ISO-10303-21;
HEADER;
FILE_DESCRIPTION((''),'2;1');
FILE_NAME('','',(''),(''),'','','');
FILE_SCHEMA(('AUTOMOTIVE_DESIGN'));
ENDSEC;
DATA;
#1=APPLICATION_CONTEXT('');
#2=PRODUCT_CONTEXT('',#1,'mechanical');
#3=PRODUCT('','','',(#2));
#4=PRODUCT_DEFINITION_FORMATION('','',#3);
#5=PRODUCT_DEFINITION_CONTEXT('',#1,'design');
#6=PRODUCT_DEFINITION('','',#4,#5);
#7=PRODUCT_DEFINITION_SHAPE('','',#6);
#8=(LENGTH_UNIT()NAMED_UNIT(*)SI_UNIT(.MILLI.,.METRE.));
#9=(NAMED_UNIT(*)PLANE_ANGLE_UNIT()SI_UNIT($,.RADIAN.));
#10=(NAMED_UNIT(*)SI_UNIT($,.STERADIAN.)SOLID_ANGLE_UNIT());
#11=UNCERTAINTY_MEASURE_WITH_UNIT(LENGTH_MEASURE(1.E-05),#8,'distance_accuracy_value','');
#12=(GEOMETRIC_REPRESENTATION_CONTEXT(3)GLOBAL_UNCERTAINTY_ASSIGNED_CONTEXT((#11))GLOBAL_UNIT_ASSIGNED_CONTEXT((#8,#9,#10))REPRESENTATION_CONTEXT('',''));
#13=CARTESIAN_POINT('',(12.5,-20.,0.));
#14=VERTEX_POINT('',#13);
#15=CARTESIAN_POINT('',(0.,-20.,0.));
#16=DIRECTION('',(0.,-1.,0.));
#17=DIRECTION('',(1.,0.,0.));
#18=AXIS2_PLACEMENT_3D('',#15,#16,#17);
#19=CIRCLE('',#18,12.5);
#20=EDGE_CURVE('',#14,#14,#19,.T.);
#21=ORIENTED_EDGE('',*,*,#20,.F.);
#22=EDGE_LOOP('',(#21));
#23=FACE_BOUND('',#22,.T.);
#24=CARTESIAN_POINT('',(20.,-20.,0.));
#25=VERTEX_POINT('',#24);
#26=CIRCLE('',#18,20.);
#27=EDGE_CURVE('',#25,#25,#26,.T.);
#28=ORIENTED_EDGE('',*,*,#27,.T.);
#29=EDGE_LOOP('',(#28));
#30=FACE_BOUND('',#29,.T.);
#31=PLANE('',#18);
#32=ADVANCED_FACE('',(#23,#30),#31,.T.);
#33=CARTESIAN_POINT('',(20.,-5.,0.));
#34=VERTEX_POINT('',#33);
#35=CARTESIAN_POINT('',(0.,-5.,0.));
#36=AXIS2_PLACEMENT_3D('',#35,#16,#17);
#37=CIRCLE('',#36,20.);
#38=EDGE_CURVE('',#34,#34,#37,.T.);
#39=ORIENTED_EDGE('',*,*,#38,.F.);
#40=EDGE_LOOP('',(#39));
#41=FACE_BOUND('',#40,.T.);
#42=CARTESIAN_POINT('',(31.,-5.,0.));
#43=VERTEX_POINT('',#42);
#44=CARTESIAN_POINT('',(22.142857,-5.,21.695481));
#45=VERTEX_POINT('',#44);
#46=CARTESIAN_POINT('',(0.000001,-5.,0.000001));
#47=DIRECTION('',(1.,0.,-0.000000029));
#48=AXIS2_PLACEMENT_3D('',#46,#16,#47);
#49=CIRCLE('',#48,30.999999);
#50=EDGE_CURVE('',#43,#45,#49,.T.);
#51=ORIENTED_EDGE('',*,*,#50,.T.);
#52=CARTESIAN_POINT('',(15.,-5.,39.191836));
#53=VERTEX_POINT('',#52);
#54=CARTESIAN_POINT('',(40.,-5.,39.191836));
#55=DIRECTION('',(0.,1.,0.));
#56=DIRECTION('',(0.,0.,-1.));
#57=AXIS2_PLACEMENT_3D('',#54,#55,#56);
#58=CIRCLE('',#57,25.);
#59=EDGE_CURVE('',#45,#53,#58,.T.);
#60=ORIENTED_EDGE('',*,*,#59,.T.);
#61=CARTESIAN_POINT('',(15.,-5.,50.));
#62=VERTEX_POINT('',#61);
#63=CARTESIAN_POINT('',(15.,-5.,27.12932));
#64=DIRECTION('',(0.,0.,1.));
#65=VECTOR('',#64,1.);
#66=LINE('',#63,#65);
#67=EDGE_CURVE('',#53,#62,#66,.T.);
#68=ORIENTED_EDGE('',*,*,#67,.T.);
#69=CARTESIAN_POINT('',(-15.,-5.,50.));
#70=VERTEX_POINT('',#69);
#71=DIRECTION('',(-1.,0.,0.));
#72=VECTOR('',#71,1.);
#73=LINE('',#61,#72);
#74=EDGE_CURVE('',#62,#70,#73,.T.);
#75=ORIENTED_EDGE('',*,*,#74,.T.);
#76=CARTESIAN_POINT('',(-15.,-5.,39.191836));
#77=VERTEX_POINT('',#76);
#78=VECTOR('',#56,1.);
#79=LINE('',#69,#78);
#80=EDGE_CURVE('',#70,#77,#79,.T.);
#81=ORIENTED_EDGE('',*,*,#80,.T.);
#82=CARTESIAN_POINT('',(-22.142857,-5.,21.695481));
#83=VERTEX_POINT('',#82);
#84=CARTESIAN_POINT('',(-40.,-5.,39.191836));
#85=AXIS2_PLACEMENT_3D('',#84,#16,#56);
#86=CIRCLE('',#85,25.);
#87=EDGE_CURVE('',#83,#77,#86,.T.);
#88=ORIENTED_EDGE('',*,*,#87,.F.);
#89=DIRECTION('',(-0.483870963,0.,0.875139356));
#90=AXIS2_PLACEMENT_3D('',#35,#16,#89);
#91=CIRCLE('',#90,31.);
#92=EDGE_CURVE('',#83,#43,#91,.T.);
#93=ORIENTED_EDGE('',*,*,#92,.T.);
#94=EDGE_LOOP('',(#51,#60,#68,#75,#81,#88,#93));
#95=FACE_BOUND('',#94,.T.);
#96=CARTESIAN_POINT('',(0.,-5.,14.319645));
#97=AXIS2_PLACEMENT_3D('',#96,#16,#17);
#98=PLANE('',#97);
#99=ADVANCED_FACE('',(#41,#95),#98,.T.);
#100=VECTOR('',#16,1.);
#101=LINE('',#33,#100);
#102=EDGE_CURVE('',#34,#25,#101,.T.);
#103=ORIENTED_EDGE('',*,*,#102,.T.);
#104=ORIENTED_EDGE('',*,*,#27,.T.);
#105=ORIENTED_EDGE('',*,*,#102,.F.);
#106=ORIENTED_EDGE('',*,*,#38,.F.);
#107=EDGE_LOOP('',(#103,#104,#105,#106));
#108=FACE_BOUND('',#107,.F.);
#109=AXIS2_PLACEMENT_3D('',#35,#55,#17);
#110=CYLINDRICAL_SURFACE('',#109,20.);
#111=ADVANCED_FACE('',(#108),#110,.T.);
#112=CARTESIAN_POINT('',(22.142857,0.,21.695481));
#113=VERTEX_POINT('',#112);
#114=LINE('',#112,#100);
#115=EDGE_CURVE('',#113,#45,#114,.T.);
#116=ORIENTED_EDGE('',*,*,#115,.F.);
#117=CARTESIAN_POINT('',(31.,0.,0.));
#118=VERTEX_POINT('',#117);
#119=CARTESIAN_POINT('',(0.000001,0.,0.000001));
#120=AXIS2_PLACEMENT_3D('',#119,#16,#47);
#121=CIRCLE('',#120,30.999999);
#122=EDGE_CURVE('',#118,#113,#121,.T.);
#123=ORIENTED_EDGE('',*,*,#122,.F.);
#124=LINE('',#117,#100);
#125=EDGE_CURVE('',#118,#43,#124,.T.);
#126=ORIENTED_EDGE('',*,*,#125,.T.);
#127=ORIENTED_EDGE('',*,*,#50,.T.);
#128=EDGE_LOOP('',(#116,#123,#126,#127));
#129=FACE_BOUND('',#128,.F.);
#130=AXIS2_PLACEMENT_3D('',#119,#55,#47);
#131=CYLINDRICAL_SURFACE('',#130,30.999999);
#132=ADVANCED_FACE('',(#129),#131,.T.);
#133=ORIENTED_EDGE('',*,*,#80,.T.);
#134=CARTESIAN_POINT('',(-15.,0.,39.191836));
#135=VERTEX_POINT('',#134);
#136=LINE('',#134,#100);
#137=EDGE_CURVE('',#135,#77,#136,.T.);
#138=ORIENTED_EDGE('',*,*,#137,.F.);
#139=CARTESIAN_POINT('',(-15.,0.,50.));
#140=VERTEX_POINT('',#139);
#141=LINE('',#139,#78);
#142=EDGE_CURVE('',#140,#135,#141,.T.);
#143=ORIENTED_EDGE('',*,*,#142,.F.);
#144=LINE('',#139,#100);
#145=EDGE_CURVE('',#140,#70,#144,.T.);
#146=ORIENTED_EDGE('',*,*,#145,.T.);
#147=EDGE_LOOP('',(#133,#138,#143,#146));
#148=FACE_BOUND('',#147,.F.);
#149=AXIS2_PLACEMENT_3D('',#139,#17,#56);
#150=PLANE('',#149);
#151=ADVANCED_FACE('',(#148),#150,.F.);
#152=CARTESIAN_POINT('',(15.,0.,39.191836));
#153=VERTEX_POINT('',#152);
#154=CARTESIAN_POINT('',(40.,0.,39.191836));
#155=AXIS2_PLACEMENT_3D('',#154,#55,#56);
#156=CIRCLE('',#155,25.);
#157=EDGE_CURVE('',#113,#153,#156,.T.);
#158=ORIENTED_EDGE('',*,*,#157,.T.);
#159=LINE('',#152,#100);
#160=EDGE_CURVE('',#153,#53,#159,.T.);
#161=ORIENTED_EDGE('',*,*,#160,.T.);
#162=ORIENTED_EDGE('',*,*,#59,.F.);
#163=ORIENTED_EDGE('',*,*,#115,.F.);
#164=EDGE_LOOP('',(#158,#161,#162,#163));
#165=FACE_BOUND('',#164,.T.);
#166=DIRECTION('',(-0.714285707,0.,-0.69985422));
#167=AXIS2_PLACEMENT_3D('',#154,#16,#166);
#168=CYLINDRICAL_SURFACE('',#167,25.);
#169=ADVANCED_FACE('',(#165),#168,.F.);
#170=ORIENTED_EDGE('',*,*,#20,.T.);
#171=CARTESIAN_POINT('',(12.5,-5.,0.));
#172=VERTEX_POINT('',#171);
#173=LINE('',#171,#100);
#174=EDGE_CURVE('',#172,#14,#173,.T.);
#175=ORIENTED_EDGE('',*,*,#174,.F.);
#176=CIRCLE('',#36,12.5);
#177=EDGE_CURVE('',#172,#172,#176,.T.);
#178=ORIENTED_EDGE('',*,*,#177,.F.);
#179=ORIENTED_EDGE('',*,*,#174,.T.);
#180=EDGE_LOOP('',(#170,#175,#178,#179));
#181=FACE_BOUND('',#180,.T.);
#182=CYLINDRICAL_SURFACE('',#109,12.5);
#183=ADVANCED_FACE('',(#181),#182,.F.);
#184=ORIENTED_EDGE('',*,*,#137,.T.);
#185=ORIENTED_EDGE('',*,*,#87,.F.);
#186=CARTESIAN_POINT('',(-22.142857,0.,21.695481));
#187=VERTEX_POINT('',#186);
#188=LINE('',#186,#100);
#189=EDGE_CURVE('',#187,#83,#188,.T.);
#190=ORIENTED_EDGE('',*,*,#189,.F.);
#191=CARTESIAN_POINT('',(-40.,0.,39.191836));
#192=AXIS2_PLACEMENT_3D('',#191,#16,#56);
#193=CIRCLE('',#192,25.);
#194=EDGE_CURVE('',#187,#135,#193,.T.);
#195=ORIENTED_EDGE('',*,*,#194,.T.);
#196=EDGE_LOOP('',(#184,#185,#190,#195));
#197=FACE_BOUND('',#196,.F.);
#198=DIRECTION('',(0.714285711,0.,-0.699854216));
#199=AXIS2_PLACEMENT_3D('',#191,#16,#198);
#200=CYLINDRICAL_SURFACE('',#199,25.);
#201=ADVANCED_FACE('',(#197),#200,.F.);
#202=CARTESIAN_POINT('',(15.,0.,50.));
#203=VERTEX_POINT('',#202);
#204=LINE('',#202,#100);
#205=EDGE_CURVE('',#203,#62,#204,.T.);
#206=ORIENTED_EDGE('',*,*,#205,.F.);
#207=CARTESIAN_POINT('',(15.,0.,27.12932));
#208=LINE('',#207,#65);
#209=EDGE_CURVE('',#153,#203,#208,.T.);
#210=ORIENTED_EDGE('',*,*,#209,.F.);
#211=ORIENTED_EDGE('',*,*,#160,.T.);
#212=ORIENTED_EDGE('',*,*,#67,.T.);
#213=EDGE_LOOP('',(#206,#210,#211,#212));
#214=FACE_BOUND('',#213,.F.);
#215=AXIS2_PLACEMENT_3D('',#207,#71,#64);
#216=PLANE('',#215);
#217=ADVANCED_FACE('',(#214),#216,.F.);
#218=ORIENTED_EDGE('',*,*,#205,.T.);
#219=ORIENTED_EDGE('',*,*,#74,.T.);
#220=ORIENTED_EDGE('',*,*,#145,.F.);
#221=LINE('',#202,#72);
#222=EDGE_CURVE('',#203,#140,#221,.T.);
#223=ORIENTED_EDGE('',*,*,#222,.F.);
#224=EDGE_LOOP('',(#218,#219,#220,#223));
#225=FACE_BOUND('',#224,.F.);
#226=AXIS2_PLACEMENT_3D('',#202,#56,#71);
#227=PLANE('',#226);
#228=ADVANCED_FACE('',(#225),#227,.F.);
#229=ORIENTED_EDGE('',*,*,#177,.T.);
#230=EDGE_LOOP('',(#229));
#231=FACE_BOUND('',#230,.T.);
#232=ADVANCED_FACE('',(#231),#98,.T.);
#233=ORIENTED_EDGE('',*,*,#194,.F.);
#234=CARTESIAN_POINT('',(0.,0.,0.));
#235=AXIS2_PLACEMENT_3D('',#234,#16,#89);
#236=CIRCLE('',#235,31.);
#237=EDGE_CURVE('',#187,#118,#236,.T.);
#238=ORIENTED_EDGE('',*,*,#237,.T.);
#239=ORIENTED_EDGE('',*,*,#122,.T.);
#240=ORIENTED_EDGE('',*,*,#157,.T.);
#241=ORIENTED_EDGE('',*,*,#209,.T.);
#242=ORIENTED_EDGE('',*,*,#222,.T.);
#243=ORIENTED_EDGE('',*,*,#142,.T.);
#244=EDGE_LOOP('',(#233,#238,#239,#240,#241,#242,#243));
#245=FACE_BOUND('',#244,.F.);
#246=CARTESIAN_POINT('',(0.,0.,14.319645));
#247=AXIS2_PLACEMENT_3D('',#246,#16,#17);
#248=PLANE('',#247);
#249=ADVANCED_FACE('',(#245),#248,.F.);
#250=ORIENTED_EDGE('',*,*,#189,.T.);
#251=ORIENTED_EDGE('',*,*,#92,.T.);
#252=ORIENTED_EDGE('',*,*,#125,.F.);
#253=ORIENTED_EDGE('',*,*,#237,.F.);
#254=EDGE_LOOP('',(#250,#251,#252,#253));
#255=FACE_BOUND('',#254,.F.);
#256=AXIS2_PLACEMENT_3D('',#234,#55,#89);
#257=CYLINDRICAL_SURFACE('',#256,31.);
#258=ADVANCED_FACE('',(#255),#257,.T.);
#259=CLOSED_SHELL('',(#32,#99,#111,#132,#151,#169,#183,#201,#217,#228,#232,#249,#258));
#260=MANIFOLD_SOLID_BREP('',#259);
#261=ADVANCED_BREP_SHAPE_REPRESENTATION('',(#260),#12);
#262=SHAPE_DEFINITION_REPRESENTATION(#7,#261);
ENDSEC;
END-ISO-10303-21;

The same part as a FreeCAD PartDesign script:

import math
import FreeCAD as App
import Part
import Sketcher
from FreeCAD import Vector
Q = App.Units.Quantity


def edges_at(feature, points):
    """Names of the edges that pass closest to the given points."""
    edges = feature.Shape.Edges
    near = lambda p: min(range(len(edges)), key=lambda i: edges[i].distToShape(Part.Vertex(*p))[0])
    return sorted({f"Edge{near(p) + 1}" for p in points})

doc = App.newDocument("Part")
body = doc.addObject("PartDesign::Body", "Body")

sketch1 = doc.addObject("Sketcher::SketchObject", "Sketch")
body.addObject(sketch1)
sketch1.AttachmentSupport = (doc.XZ_Plane, [""])
sketch1.MapMode = "FlatFace"
sketch1.addGeometry([
    Part.ArcOfCircle(Part.Circle(Vector(0, 0, 0), Vector(0, 0, 1), 31), math.radians(119), math.radians(360)),
    Part.ArcOfCircle(Part.Circle(Vector(0, 0, 0), Vector(0, 0, 1), 31), math.radians(0), math.radians(61)),
    Part.LineSegment(Vector(15, 27, 0), Vector(15, 50, 0)),
    Part.LineSegment(Vector(15, 50, 0), Vector(-15, 50, 0)),
    Part.LineSegment(Vector(-15, 50, 0), Vector(-15, 27, 0)),
], False)
sketch1.addConstraint([
    Sketcher.Constraint("Tangent", 0, 2, 1, 1),
    Sketcher.Constraint("Coincident", 1, 2, 2, 1),
    Sketcher.Constraint("Coincident", 2, 2, 3, 1),
    Sketcher.Constraint("Coincident", 3, 2, 4, 1),
    Sketcher.Constraint("Coincident", 4, 2, 0, 1),
    Sketcher.Constraint("Vertical", 2),
    Sketcher.Constraint("Horizontal", 3),
    Sketcher.Constraint("Vertical", 4),
    Sketcher.Constraint("Coincident", 0, 3, -1, 1),
    Sketcher.Constraint("Equal", 0, 1),
    Sketcher.Constraint("PointOnObject", 0, 2, -1),
    Sketcher.Constraint("Horizontal", 1, 2, 4, 2),
    Sketcher.Constraint("Radius", 0, Q("31 mm")),
    Sketcher.Constraint("DistanceX", 3, 2, 3, 1, Q("30 mm")),
    Sketcher.Constraint("DistanceY", -1, 1, 2, 2, Q("50 mm")),
])
pad1 = doc.addObject("PartDesign::Pad", "Pad")
body.addObject(pad1)
pad1.Profile = sketch1
pad1.Length = 5
doc.recompute()

fillet = doc.addObject("PartDesign::Fillet", "Fillet")
body.addObject(fillet)
fillet.Base = (pad1, edges_at(pad1, [(-15, -2.5, 27.129), (15, -2.5, 27.129)]))
fillet.Radius = 25

sketch2 = doc.addObject("Sketcher::SketchObject", "Sketch001")
body.addObject(sketch2)
sketch2.AttachmentSupport = (doc.XZ_Plane, [""])
sketch2.MapMode = "FlatFace"
sketch2.AttachmentOffset = App.Placement(Vector(0, 0, 5), App.Rotation())
sketch2.addGeometry([
    Part.Circle(Vector(0, 0, 0), Vector(0, 0, 1), 20),
    Part.Circle(Vector(0, 0, 0), Vector(0, 0, 1), 12),
], False)
sketch2.addConstraint([
    Sketcher.Constraint("Coincident", 0, 3, -1, 1),
    Sketcher.Constraint("Coincident", 1, 3, -1, 1),
    Sketcher.Constraint("Diameter", 0, Q("40 mm")),
    Sketcher.Constraint("Diameter", 1, Q("25 mm")),
])
pad2 = doc.addObject("PartDesign::Pad", "Pad001")
body.addObject(pad2)
pad2.Profile = sketch2
pad2.Length = 15

doc.recompute()
